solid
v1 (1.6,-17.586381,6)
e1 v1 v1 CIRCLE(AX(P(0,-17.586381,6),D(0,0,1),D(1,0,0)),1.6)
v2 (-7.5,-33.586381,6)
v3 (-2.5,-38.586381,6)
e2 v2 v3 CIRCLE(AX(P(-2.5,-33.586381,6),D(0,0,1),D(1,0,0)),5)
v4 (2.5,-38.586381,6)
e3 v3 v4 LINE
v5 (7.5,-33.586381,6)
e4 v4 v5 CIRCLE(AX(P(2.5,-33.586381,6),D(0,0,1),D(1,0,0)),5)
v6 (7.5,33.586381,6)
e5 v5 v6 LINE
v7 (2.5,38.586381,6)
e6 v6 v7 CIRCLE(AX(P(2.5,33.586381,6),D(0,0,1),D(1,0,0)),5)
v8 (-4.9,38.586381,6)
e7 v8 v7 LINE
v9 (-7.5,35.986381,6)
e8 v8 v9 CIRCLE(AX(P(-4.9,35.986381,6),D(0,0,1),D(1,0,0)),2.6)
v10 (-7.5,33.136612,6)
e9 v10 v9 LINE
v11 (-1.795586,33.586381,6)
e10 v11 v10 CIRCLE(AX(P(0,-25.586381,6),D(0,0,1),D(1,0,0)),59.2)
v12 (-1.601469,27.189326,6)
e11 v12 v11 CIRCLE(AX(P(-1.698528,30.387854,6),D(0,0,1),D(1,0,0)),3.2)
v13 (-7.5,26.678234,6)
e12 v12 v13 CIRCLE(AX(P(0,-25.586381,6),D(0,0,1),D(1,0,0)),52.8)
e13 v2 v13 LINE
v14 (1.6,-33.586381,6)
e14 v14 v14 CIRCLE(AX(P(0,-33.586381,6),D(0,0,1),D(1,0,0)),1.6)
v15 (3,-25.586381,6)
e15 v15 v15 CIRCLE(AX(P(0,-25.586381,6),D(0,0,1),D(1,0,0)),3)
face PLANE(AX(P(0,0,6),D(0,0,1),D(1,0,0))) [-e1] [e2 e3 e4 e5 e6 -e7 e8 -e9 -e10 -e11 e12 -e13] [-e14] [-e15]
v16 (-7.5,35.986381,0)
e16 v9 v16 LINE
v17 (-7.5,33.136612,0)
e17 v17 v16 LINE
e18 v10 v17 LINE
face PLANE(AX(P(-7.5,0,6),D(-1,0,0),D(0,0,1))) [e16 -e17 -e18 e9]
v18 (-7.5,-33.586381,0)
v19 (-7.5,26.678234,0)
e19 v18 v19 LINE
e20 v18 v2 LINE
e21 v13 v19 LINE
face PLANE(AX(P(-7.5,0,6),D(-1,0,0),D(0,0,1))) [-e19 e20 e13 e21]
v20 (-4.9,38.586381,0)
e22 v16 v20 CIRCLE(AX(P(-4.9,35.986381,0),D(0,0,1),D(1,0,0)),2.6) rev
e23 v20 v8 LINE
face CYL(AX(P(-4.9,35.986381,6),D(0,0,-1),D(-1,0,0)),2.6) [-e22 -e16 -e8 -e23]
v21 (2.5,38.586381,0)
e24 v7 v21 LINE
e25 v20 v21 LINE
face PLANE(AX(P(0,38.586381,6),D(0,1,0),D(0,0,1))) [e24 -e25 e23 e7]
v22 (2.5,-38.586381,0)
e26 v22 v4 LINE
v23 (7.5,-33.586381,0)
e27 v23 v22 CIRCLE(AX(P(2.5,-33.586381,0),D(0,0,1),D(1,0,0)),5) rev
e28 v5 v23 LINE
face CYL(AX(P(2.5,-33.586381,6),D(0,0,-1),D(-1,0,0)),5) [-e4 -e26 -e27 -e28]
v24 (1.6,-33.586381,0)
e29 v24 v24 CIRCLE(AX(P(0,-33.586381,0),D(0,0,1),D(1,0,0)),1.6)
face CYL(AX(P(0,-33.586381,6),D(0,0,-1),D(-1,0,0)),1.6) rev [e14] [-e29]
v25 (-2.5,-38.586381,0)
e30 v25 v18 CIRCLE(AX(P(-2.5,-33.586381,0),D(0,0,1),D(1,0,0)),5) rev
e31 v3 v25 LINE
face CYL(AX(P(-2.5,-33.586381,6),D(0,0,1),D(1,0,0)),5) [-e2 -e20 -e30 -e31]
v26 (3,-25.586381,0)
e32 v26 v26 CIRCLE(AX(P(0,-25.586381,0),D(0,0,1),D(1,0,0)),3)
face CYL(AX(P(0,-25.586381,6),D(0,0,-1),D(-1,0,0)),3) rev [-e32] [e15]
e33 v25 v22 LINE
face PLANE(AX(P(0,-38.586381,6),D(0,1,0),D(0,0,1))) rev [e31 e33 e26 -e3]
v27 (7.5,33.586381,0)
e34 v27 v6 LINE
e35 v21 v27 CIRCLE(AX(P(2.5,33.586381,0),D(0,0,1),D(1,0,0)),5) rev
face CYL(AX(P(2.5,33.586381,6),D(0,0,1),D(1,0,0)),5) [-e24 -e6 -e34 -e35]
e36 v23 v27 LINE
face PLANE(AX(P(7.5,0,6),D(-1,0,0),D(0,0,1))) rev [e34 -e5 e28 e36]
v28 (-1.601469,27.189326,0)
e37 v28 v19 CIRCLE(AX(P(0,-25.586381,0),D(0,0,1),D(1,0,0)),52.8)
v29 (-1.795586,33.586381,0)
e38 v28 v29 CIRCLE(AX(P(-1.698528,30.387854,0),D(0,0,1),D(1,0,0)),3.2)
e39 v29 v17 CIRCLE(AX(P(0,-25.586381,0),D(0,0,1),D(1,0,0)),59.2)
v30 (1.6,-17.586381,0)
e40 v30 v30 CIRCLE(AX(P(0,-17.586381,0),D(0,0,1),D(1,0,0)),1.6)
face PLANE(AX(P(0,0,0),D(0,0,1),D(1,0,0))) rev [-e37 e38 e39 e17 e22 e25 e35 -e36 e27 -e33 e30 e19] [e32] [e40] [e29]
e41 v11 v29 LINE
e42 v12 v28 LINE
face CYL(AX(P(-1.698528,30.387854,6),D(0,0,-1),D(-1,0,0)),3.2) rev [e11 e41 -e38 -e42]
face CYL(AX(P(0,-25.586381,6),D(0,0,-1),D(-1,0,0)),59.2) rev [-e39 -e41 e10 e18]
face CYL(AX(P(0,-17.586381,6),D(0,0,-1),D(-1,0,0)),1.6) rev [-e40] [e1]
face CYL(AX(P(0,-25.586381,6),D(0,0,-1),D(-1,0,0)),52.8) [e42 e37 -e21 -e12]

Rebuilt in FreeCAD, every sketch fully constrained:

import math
import FreeCAD as App
import Part
import Sketcher
Q = App.Units.Quantity


def edges_at(feature, points):
    """Names of the edges that pass closest to the given points."""
    edges = feature.Shape.Edges
    near = lambda p: min(range(len(edges)), key=lambda i: edges[i].distToShape(Part.Vertex(*p))[0])
    return sorted({f"Edge{near(p) + 1}" for p in points})

doc = App.newDocument("Part")
body = doc.addObject("PartDesign::Body", "Body")

# Sketch on XY plane
sketch1 = body.newObject("Sketcher::SketchObject", "Sketch")
sketch1.AttachmentSupport = (doc.getObject("XY_Plane"), [""])
sketch1.MapMode = "FlatFace"
sketch1.addGeometry(Part.LineSegment(App.Vector(-7.5, 26.7, 0), App.Vector(-7.5, -38.6, 0)), False)
sketch1.addGeometry(Part.LineSegment(App.Vector(-7.5, -38.6, 0), App.Vector(7.5, -38.6, 0)), False)
sketch1.addGeometry(Part.LineSegment(App.Vector(7.5, -38.6, 0), App.Vector(7.5, 38.6, 0)), False)
sketch1.addGeometry(Part.LineSegment(App.Vector(7.5, 38.6, 0), App.Vector(-7.5, 38.6, 0)), False)
sketch1.addGeometry(Part.LineSegment(App.Vector(-7.5, 38.6, 0), App.Vector(-7.5, 33.1, 0)), False)
sketch1.addGeometry(Part.ArcOfCircle(Part.Circle(App.Vector(0, -25.6, 0), App.Vector(0, 0, 1), 59.2), math.radians(91.74), math.radians(97.28)), False)
sketch1.addGeometry(Part.ArcOfCircle(Part.Circle(App.Vector(-1.7, 30.4, 0), App.Vector(0, 0, 1), 3.2), math.radians(-88), math.radians(92)), False)
sketch1.addGeometry(Part.ArcOfCircle(Part.Circle(App.Vector(0, -25.6, 0), App.Vector(0, 0, 1), 52.8), math.radians(91.74), math.radians(98.17)), False)
sketch1.addGeometry(Part.Circle(App.Vector(0, -33.6, 0), App.Vector(0, 0, 1), 1.6), False)
sketch1.addGeometry(Part.Circle(App.Vector(0, -25.6, 0), App.Vector(0, 0, 1), 3), False)
sketch1.addGeometry(Part.Circle(App.Vector(0, -17.6, 0), App.Vector(0, 0, 1), 1.6), False)
sketch1.addConstraint(Sketcher.Constraint("Coincident", 0, 2, 1, 1))
sketch1.addConstraint(Sketcher.Constraint("Coincident", 1, 2, 2, 1))
sketch1.addConstraint(Sketcher.Constraint("Coincident", 2, 2, 3, 1))
sketch1.addConstraint(Sketcher.Constraint("Coincident", 3, 2, 4, 1))
sketch1.addConstraint(Sketcher.Constraint("Coincident", 4, 2, 5, 2))
sketch1.addConstraint(Sketcher.Constraint("Tangent", 5, 1, 6, 2))
sketch1.addConstraint(Sketcher.Constraint("Tangent", 6, 1, 7, 1))
sketch1.addConstraint(Sketcher.Constraint("Coincident", 7, 2, 0, 1))
sketch1.addConstraint(Sketcher.Constraint("Vertical", 0))
sketch1.addConstraint(Sketcher.Constraint("Horizontal", 1))
sketch1.addConstraint(Sketcher.Constraint("Vertical", 2))
sketch1.addConstraint(Sketcher.Constraint("Horizontal", 3))
sketch1.addConstraint(Sketcher.Constraint("Vertical", 4))
sketch1.addConstraint(Sketcher.Constraint("Coincident", 7, 3, 5, 3))
sketch1.addConstraint(Sketcher.Constraint("Coincident", 9, 3, 5, 3))
sketch1.addConstraint(Sketcher.Constraint("Equal", 8, 10))
sketch1.addConstraint(Sketcher.Constraint("Symmetric", 0, 2, 2, 2, -1, 1))
sketch1.addConstraint(Sketcher.Constraint("PointOnObject", 5, 3, -2))
sketch1.addConstraint(Sketcher.Constraint("PointOnObject", 8, 3, -2))
sketch1.addConstraint(Sketcher.Constraint("PointOnObject", 10, 3, -2))
sketch1.addConstraint(Sketcher.Constraint("Vertical", 0, 2, 3, 2))
sketch1.addConstraint(Sketcher.Constraint("Diameter", 9, Q("6 mm")))
sketch1.addConstraint(Sketcher.Constraint("Diameter", 8, Q("3.2 mm")))
sketch1.addConstraint(Sketcher.Constraint("Radius", 5, Q("59.2 mm")))
sketch1.addConstraint(Sketcher.Constraint("Radius", 6, Q("3.2 mm")))
sketch1.addConstraint(Sketcher.Constraint("DistanceX", 1, 1, 1, 2, Q("15 mm")))
sketch1.addConstraint(Sketcher.Constraint("DistanceY", 8, 3, 7, 3, Q("8 mm")))
sketch1.addConstraint(Sketcher.Constraint("DistanceY", 9, 3, 10, 3, Q("8 mm")))
sketch1.addConstraint(Sketcher.Constraint("DistanceY", 0, 2, 8, 3, Q("5 mm")))
sketch1.addConstraint(Sketcher.Constraint("DistanceY", 5, 1, 3, 2, Q("5 mm")))
sketch1.addConstraint(Sketcher.Constraint("DistanceY", 4, 2, 4, 1, Q("5.449769 mm")))
pad1 = body.newObject("PartDesign::Pad", "Pad")
pad1.Profile = sketch1
pad1.Length = 6
doc.recompute()

fillet = body.newObject("PartDesign::Fillet", "Fillet")
fillet.Base = (pad1, edges_at(pad1, [(7.5, 38.586, 3), (7.5, -38.586, 3), (-7.5, -38.586, 3)]))
fillet.Radius = 5
doc.recompute()

fillet2 = body.newObject("PartDesign::Fillet", "Fillet001")
fillet2.Base = (fillet, edges_at(fillet, [(-7.5, 38.586, 3)]))
fillet2.Radius = 2.6

doc.recompute()
